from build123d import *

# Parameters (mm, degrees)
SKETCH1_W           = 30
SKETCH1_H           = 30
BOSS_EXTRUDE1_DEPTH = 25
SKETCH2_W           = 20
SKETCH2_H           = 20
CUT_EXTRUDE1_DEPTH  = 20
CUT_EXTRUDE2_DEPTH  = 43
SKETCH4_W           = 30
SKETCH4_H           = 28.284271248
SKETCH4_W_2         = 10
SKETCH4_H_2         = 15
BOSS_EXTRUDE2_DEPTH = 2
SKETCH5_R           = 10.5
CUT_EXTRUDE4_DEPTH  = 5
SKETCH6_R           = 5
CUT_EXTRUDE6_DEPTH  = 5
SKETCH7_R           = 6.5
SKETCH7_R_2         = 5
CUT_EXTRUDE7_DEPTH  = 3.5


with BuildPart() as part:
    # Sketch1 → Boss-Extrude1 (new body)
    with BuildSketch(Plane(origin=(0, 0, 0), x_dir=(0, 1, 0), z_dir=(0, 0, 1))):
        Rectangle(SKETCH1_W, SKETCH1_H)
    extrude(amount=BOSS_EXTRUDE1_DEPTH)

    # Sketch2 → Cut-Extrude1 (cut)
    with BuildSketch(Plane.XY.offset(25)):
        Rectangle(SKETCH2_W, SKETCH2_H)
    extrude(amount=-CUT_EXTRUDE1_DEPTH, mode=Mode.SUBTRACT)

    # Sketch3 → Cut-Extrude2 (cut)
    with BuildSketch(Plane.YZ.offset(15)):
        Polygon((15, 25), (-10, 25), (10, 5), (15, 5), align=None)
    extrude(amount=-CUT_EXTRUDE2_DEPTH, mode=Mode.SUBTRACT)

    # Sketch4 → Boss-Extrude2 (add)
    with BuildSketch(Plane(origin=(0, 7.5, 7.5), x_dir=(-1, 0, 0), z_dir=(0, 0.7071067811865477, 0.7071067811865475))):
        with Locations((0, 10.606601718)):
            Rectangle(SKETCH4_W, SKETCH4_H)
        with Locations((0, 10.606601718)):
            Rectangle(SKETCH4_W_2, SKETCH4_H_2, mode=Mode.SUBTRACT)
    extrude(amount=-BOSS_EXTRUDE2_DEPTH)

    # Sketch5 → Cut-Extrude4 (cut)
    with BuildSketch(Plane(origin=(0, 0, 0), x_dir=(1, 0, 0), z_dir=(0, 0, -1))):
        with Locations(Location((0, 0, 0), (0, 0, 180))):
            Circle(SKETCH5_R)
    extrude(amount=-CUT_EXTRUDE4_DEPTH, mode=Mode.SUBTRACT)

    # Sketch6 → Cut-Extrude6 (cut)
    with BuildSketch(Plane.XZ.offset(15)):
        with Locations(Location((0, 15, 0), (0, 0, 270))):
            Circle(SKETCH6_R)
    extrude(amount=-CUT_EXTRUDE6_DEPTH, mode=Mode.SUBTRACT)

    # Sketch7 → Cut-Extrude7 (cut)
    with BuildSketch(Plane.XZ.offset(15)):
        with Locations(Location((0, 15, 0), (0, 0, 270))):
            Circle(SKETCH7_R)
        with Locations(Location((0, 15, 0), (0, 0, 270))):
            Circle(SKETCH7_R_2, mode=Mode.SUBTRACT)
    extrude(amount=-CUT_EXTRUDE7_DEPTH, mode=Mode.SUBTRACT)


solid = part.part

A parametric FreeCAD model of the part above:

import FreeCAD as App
import Part
import Sketcher

V = App.Vector

doc = App.newDocument("Part")
body = doc.addObject("PartDesign::Body", "Body")

# Sketch on XY plane
sketch1 = body.newObject("Sketcher::SketchObject", "Sketch")
sketch1.AttachmentSupport = (doc.getObject("XY_Plane"), [""])
sketch1.MapMode = "FlatFace"
sketch1.addGeometry([
    Part.LineSegment(V(-15, -15, 0), V(15, -15, 0)),
    Part.LineSegment(V(15, -15, 0), V(15, 15, 0)),
    Part.LineSegment(V(15, 15, 0), V(-15, 15, 0)),
    Part.LineSegment(V(-15, 15, 0), V(-15, -15, 0)),
], False)
sketch1.addConstraint([
    Sketcher.Constraint("Coincident", 0, 2, 1, 1),
    Sketcher.Constraint("Coincident", 1, 2, 2, 1),
    Sketcher.Constraint("Coincident", 2, 2, 3, 1),
    Sketcher.Constraint("Coincident", 3, 2, 0, 1),
    Sketcher.Constraint("Horizontal", 0),
    Sketcher.Constraint("Vertical", 1),
    Sketcher.Constraint("Horizontal", 2),
    Sketcher.Constraint("Vertical", 3),
    Sketcher.Constraint("Symmetric", 0, 2, 2, 2, -1, 1),
    Sketcher.Constraint("Equal", 2, 1),
    Sketcher.Constraint("DistanceX", 0, 1, 0, 2, 30.0),
])
pad1 = body.newObject("PartDesign::Pad", "Pad")
pad1.Profile = sketch1
pad1.Length = 25

# Sketch on XY plane
sketch2 = body.newObject("Sketcher::SketchObject", "Sketch001")
sketch2.AttachmentSupport = (doc.getObject("XY_Plane"), [""])
sketch2.MapMode = "FlatFace"
sketch2.AttachmentOffset = App.Placement(V(0, 0, 25), App.Rotation())
sketch2.addGeometry([
    Part.LineSegment(V(-10, 10, 0), V(-10, -10, 0)),
    Part.LineSegment(V(-10, -10, 0), V(10, -10, 0)),
    Part.LineSegment(V(10, -10, 0), V(10, 10, 0)),
    Part.LineSegment(V(10, 10, 0), V(-10, 10, 0)),
], False)
sketch2.addConstraint([
    Sketcher.Constraint("Coincident", 0, 2, 1, 1),
    Sketcher.Constraint("Coincident", 1, 2, 2, 1),
    Sketcher.Constraint("Coincident", 2, 2, 3, 1),
    Sketcher.Constraint("Coincident", 3, 2, 0, 1),
    Sketcher.Constraint("Vertical", 0),
    Sketcher.Constraint("Horizontal", 1),
    Sketcher.Constraint("Vertical", 2),
    Sketcher.Constraint("Horizontal", 3),
    Sketcher.Constraint("Symmetric", 0, 2, 2, 2, -1, 1),
    Sketcher.Constraint("Equal", 3, 0),
    Sketcher.Constraint("DistanceX", 1, 1, 1, 2, 20.0),
])
pocket1 = body.newObject("PartDesign::Pocket", "Pocket")
pocket1.Profile = sketch2
pocket1.Length = 20

# Sketch on YZ plane
sketch3 = body.newObject("Sketcher::SketchObject", "Sketch002")
sketch3.AttachmentSupport = (doc.getObject("YZ_Plane"), [""])
sketch3.MapMode = "FlatFace"
sketch3.AttachmentOffset = App.Placement(V(0, 0, 15), App.Rotation())
sketch3.addGeometry([
    Part.LineSegment(V(15, 25, 0), V(-10, 25, 0)),
    Part.LineSegment(V(-10, 25, 0), V(10, 5, 0)),
    Part.LineSegment(V(10, 5, 0), V(15, 5, 0)),
    Part.LineSegment(V(15, 5, 0), V(15, 25, 0)),
], False)
sketch3.addConstraint([
    Sketcher.Constraint("Coincident", 0, 2, 1, 1),
    Sketcher.Constraint("Coincident", 1, 2, 2, 1),
    Sketcher.Constraint("Coincident", 2, 2, 3, 1),
    Sketcher.Constraint("Coincident", 3, 2, 0, 1),
    Sketcher.Constraint("Horizontal", 0),
    Sketcher.Constraint("Horizontal", 2),
    Sketcher.Constraint("Vertical", 3),
    Sketcher.Constraint("DistanceX", 0, 2, 0, 1, 25.0),
    Sketcher.Constraint("DistanceX", 2, 1, 2, 2, 5.0),
    Sketcher.Constraint("DistanceY", 3, 1, 3, 2, 20.0),
    Sketcher.Constraint("DistanceX", 0, 2, -1, 1, 10.0),
    Sketcher.Constraint("DistanceY", -1, 1, 0, 2, 25.0),
])
pocket2 = body.newObject("PartDesign::Pocket", "Pocket001")
pocket2.Profile = sketch3
pocket2.Length = 43

# Sketch on an angled plane
sketch4 = body.newObject("Sketcher::SketchObject", "Sketch003")
sketch4.Placement = App.Placement(V(0, 7.5, 7.5), App.Rotation(V(-1, 0, 0), V(0, -0.707106781, 0.707106781), V(0, 0.707106781, 0.707106781), "ZXY"))
sketch4.addGeometry([
    Part.LineSegment(V(-15, 25, 0), V(-15, -4, 0)),  # 0
    Part.LineSegment(V(-15, -4, 0), V(15, -4, 0)),  # 1
    Part.LineSegment(V(15, -4, 0), V(15, 25, 0)),  # 2
    Part.LineSegment(V(15, 25, 0), V(-15, 25, 0)),  # 3
    Part.LineSegment(V(5, 3, 0), V(-5, 3, 0)),  # 4
    Part.LineSegment(V(-5, 3, 0), V(-5, 18, 0)),  # 5
    Part.LineSegment(V(-5, 18, 0), V(5, 18, 0)),  # 6
    Part.LineSegment(V(5, 18, 0), V(5, 3, 0)),  # 7
], False)
sketch4.addConstraint([
    Sketcher.Constraint("Coincident", 0, 2, 1, 1),
    Sketcher.Constraint("Coincident", 1, 2, 2, 1),
    Sketcher.Constraint("Coincident", 2, 2, 3, 1),
    Sketcher.Constraint("Coincident", 3, 2, 0, 1),
    Sketcher.Constraint("Coincident", 4, 2, 5, 1),
    Sketcher.Constraint("Coincident", 5, 2, 6, 1),
    Sketcher.Constraint("Coincident", 6, 2, 7, 1),
    Sketcher.Constraint("Coincident", 7, 2, 4, 1),
    Sketcher.Constraint("Vertical", 0),
    Sketcher.Constraint("Horizontal", 1),
    Sketcher.Constraint("Vertical", 2),
    Sketcher.Constraint("Horizontal", 3),
    Sketcher.Constraint("Horizontal", 4),
    Sketcher.Constraint("Vertical", 5),
    Sketcher.Constraint("Horizontal", 6),
    Sketcher.Constraint("Vertical", 7),
    Sketcher.Constraint("DistanceX", 1, 1, 1, 2, 30.0),
    Sketcher.Constraint("DistanceX", 4, 2, 4, 1, 10.0),
    Sketcher.Constraint("DistanceY", 5, 1, 5, 2, 15.0),
    Sketcher.Constraint("DistanceX", 0, 2, -1, 1, 15.0),
    Sketcher.Constraint("DistanceX", 4, 2, -1, 1, 5.0),
    Sketcher.Constraint("DistanceY", 0, 2, 0, 1, 28.284271),
    Sketcher.Constraint("DistanceY", -1, 1, 4, 2, 3.106602),
    Sketcher.Constraint("DistanceY", 0, 2, -1, 1, 3.535534),
])
pad2 = body.newObject("PartDesign::Pad", "Pad001")
pad2.Profile = sketch4
pad2.Length = 2
pad2.Reversed = True

# Sketch on XY plane
sketch5 = body.newObject("Sketcher::SketchObject", "Sketch004")
sketch5.AttachmentSupport = (doc.getObject("XY_Plane"), [""])
sketch5.MapMode = "FlatFace"
sketch5.addGeometry(Part.Circle(V(0, 0, 0), V(0, 0, 1), 10), False)
sketch5.addConstraint([
    Sketcher.Constraint("Coincident", 0, 3, -1, 1),
    Sketcher.Constraint("Diameter", 0, 21.0),
])
pocket3 = body.newObject("PartDesign::Pocket", "Pocket002")
pocket3.Profile = sketch5
pocket3.Length = 5
pocket3.Reversed = True

# Sketch on XZ plane
sketch6 = body.newObject("Sketcher::SketchObject", "Sketch005")
sketch6.AttachmentSupport = (doc.getObject("XZ_Plane"), [""])
sketch6.MapMode = "FlatFace"
sketch6.AttachmentOffset = App.Placement(V(0, 0, 15), App.Rotation())
sketch6.addGeometry(Part.Circle(V(0, 15, 0), V(0, 0, 1), 5), False)
sketch6.addConstraint([
    Sketcher.Constraint("PointOnObject", 0, 3, -2),
    Sketcher.Constraint("Diameter", 0, 10.0),
    Sketcher.Constraint("DistanceY", -1, 1, 0, 3, 15.0),
])
pocket4 = body.newObject("PartDesign::Pocket", "Pocket003")
pocket4.Profile = sketch6
pocket4.Length = 5

# Sketch on XZ plane
sketch7 = body.newObject("Sketcher::SketchObject", "Sketch006")
sketch7.AttachmentSupport = (doc.getObject("XZ_Plane"), [""])
sketch7.MapMode = "FlatFace"
sketch7.AttachmentOffset = App.Placement(V(0, 0, 15), App.Rotation())
sketch7.addGeometry([
    Part.Circle(V(0, 15, 0), V(0, 0, 1), 6),
    Part.Circle(V(0, 15, 0), V(0, 0, 1), 5),
], False)
sketch7.addConstraint([
    Sketcher.Constraint("Coincident", 1, 3, 0, 3),
    Sketcher.Constraint("PointOnObject", 0, 3, -2),
    Sketcher.Constraint("Diameter", 0, 13.0),
    Sketcher.Constraint("Diameter", 1, 10.0),
    Sketcher.Constraint("DistanceY", -1, 1, 0, 3, 15.0),
])
pocket5 = body.newObject("PartDesign::Pocket", "Pocket004")
pocket5.Profile = sketch7
pocket5.Length = 3.5

doc.recompute()
